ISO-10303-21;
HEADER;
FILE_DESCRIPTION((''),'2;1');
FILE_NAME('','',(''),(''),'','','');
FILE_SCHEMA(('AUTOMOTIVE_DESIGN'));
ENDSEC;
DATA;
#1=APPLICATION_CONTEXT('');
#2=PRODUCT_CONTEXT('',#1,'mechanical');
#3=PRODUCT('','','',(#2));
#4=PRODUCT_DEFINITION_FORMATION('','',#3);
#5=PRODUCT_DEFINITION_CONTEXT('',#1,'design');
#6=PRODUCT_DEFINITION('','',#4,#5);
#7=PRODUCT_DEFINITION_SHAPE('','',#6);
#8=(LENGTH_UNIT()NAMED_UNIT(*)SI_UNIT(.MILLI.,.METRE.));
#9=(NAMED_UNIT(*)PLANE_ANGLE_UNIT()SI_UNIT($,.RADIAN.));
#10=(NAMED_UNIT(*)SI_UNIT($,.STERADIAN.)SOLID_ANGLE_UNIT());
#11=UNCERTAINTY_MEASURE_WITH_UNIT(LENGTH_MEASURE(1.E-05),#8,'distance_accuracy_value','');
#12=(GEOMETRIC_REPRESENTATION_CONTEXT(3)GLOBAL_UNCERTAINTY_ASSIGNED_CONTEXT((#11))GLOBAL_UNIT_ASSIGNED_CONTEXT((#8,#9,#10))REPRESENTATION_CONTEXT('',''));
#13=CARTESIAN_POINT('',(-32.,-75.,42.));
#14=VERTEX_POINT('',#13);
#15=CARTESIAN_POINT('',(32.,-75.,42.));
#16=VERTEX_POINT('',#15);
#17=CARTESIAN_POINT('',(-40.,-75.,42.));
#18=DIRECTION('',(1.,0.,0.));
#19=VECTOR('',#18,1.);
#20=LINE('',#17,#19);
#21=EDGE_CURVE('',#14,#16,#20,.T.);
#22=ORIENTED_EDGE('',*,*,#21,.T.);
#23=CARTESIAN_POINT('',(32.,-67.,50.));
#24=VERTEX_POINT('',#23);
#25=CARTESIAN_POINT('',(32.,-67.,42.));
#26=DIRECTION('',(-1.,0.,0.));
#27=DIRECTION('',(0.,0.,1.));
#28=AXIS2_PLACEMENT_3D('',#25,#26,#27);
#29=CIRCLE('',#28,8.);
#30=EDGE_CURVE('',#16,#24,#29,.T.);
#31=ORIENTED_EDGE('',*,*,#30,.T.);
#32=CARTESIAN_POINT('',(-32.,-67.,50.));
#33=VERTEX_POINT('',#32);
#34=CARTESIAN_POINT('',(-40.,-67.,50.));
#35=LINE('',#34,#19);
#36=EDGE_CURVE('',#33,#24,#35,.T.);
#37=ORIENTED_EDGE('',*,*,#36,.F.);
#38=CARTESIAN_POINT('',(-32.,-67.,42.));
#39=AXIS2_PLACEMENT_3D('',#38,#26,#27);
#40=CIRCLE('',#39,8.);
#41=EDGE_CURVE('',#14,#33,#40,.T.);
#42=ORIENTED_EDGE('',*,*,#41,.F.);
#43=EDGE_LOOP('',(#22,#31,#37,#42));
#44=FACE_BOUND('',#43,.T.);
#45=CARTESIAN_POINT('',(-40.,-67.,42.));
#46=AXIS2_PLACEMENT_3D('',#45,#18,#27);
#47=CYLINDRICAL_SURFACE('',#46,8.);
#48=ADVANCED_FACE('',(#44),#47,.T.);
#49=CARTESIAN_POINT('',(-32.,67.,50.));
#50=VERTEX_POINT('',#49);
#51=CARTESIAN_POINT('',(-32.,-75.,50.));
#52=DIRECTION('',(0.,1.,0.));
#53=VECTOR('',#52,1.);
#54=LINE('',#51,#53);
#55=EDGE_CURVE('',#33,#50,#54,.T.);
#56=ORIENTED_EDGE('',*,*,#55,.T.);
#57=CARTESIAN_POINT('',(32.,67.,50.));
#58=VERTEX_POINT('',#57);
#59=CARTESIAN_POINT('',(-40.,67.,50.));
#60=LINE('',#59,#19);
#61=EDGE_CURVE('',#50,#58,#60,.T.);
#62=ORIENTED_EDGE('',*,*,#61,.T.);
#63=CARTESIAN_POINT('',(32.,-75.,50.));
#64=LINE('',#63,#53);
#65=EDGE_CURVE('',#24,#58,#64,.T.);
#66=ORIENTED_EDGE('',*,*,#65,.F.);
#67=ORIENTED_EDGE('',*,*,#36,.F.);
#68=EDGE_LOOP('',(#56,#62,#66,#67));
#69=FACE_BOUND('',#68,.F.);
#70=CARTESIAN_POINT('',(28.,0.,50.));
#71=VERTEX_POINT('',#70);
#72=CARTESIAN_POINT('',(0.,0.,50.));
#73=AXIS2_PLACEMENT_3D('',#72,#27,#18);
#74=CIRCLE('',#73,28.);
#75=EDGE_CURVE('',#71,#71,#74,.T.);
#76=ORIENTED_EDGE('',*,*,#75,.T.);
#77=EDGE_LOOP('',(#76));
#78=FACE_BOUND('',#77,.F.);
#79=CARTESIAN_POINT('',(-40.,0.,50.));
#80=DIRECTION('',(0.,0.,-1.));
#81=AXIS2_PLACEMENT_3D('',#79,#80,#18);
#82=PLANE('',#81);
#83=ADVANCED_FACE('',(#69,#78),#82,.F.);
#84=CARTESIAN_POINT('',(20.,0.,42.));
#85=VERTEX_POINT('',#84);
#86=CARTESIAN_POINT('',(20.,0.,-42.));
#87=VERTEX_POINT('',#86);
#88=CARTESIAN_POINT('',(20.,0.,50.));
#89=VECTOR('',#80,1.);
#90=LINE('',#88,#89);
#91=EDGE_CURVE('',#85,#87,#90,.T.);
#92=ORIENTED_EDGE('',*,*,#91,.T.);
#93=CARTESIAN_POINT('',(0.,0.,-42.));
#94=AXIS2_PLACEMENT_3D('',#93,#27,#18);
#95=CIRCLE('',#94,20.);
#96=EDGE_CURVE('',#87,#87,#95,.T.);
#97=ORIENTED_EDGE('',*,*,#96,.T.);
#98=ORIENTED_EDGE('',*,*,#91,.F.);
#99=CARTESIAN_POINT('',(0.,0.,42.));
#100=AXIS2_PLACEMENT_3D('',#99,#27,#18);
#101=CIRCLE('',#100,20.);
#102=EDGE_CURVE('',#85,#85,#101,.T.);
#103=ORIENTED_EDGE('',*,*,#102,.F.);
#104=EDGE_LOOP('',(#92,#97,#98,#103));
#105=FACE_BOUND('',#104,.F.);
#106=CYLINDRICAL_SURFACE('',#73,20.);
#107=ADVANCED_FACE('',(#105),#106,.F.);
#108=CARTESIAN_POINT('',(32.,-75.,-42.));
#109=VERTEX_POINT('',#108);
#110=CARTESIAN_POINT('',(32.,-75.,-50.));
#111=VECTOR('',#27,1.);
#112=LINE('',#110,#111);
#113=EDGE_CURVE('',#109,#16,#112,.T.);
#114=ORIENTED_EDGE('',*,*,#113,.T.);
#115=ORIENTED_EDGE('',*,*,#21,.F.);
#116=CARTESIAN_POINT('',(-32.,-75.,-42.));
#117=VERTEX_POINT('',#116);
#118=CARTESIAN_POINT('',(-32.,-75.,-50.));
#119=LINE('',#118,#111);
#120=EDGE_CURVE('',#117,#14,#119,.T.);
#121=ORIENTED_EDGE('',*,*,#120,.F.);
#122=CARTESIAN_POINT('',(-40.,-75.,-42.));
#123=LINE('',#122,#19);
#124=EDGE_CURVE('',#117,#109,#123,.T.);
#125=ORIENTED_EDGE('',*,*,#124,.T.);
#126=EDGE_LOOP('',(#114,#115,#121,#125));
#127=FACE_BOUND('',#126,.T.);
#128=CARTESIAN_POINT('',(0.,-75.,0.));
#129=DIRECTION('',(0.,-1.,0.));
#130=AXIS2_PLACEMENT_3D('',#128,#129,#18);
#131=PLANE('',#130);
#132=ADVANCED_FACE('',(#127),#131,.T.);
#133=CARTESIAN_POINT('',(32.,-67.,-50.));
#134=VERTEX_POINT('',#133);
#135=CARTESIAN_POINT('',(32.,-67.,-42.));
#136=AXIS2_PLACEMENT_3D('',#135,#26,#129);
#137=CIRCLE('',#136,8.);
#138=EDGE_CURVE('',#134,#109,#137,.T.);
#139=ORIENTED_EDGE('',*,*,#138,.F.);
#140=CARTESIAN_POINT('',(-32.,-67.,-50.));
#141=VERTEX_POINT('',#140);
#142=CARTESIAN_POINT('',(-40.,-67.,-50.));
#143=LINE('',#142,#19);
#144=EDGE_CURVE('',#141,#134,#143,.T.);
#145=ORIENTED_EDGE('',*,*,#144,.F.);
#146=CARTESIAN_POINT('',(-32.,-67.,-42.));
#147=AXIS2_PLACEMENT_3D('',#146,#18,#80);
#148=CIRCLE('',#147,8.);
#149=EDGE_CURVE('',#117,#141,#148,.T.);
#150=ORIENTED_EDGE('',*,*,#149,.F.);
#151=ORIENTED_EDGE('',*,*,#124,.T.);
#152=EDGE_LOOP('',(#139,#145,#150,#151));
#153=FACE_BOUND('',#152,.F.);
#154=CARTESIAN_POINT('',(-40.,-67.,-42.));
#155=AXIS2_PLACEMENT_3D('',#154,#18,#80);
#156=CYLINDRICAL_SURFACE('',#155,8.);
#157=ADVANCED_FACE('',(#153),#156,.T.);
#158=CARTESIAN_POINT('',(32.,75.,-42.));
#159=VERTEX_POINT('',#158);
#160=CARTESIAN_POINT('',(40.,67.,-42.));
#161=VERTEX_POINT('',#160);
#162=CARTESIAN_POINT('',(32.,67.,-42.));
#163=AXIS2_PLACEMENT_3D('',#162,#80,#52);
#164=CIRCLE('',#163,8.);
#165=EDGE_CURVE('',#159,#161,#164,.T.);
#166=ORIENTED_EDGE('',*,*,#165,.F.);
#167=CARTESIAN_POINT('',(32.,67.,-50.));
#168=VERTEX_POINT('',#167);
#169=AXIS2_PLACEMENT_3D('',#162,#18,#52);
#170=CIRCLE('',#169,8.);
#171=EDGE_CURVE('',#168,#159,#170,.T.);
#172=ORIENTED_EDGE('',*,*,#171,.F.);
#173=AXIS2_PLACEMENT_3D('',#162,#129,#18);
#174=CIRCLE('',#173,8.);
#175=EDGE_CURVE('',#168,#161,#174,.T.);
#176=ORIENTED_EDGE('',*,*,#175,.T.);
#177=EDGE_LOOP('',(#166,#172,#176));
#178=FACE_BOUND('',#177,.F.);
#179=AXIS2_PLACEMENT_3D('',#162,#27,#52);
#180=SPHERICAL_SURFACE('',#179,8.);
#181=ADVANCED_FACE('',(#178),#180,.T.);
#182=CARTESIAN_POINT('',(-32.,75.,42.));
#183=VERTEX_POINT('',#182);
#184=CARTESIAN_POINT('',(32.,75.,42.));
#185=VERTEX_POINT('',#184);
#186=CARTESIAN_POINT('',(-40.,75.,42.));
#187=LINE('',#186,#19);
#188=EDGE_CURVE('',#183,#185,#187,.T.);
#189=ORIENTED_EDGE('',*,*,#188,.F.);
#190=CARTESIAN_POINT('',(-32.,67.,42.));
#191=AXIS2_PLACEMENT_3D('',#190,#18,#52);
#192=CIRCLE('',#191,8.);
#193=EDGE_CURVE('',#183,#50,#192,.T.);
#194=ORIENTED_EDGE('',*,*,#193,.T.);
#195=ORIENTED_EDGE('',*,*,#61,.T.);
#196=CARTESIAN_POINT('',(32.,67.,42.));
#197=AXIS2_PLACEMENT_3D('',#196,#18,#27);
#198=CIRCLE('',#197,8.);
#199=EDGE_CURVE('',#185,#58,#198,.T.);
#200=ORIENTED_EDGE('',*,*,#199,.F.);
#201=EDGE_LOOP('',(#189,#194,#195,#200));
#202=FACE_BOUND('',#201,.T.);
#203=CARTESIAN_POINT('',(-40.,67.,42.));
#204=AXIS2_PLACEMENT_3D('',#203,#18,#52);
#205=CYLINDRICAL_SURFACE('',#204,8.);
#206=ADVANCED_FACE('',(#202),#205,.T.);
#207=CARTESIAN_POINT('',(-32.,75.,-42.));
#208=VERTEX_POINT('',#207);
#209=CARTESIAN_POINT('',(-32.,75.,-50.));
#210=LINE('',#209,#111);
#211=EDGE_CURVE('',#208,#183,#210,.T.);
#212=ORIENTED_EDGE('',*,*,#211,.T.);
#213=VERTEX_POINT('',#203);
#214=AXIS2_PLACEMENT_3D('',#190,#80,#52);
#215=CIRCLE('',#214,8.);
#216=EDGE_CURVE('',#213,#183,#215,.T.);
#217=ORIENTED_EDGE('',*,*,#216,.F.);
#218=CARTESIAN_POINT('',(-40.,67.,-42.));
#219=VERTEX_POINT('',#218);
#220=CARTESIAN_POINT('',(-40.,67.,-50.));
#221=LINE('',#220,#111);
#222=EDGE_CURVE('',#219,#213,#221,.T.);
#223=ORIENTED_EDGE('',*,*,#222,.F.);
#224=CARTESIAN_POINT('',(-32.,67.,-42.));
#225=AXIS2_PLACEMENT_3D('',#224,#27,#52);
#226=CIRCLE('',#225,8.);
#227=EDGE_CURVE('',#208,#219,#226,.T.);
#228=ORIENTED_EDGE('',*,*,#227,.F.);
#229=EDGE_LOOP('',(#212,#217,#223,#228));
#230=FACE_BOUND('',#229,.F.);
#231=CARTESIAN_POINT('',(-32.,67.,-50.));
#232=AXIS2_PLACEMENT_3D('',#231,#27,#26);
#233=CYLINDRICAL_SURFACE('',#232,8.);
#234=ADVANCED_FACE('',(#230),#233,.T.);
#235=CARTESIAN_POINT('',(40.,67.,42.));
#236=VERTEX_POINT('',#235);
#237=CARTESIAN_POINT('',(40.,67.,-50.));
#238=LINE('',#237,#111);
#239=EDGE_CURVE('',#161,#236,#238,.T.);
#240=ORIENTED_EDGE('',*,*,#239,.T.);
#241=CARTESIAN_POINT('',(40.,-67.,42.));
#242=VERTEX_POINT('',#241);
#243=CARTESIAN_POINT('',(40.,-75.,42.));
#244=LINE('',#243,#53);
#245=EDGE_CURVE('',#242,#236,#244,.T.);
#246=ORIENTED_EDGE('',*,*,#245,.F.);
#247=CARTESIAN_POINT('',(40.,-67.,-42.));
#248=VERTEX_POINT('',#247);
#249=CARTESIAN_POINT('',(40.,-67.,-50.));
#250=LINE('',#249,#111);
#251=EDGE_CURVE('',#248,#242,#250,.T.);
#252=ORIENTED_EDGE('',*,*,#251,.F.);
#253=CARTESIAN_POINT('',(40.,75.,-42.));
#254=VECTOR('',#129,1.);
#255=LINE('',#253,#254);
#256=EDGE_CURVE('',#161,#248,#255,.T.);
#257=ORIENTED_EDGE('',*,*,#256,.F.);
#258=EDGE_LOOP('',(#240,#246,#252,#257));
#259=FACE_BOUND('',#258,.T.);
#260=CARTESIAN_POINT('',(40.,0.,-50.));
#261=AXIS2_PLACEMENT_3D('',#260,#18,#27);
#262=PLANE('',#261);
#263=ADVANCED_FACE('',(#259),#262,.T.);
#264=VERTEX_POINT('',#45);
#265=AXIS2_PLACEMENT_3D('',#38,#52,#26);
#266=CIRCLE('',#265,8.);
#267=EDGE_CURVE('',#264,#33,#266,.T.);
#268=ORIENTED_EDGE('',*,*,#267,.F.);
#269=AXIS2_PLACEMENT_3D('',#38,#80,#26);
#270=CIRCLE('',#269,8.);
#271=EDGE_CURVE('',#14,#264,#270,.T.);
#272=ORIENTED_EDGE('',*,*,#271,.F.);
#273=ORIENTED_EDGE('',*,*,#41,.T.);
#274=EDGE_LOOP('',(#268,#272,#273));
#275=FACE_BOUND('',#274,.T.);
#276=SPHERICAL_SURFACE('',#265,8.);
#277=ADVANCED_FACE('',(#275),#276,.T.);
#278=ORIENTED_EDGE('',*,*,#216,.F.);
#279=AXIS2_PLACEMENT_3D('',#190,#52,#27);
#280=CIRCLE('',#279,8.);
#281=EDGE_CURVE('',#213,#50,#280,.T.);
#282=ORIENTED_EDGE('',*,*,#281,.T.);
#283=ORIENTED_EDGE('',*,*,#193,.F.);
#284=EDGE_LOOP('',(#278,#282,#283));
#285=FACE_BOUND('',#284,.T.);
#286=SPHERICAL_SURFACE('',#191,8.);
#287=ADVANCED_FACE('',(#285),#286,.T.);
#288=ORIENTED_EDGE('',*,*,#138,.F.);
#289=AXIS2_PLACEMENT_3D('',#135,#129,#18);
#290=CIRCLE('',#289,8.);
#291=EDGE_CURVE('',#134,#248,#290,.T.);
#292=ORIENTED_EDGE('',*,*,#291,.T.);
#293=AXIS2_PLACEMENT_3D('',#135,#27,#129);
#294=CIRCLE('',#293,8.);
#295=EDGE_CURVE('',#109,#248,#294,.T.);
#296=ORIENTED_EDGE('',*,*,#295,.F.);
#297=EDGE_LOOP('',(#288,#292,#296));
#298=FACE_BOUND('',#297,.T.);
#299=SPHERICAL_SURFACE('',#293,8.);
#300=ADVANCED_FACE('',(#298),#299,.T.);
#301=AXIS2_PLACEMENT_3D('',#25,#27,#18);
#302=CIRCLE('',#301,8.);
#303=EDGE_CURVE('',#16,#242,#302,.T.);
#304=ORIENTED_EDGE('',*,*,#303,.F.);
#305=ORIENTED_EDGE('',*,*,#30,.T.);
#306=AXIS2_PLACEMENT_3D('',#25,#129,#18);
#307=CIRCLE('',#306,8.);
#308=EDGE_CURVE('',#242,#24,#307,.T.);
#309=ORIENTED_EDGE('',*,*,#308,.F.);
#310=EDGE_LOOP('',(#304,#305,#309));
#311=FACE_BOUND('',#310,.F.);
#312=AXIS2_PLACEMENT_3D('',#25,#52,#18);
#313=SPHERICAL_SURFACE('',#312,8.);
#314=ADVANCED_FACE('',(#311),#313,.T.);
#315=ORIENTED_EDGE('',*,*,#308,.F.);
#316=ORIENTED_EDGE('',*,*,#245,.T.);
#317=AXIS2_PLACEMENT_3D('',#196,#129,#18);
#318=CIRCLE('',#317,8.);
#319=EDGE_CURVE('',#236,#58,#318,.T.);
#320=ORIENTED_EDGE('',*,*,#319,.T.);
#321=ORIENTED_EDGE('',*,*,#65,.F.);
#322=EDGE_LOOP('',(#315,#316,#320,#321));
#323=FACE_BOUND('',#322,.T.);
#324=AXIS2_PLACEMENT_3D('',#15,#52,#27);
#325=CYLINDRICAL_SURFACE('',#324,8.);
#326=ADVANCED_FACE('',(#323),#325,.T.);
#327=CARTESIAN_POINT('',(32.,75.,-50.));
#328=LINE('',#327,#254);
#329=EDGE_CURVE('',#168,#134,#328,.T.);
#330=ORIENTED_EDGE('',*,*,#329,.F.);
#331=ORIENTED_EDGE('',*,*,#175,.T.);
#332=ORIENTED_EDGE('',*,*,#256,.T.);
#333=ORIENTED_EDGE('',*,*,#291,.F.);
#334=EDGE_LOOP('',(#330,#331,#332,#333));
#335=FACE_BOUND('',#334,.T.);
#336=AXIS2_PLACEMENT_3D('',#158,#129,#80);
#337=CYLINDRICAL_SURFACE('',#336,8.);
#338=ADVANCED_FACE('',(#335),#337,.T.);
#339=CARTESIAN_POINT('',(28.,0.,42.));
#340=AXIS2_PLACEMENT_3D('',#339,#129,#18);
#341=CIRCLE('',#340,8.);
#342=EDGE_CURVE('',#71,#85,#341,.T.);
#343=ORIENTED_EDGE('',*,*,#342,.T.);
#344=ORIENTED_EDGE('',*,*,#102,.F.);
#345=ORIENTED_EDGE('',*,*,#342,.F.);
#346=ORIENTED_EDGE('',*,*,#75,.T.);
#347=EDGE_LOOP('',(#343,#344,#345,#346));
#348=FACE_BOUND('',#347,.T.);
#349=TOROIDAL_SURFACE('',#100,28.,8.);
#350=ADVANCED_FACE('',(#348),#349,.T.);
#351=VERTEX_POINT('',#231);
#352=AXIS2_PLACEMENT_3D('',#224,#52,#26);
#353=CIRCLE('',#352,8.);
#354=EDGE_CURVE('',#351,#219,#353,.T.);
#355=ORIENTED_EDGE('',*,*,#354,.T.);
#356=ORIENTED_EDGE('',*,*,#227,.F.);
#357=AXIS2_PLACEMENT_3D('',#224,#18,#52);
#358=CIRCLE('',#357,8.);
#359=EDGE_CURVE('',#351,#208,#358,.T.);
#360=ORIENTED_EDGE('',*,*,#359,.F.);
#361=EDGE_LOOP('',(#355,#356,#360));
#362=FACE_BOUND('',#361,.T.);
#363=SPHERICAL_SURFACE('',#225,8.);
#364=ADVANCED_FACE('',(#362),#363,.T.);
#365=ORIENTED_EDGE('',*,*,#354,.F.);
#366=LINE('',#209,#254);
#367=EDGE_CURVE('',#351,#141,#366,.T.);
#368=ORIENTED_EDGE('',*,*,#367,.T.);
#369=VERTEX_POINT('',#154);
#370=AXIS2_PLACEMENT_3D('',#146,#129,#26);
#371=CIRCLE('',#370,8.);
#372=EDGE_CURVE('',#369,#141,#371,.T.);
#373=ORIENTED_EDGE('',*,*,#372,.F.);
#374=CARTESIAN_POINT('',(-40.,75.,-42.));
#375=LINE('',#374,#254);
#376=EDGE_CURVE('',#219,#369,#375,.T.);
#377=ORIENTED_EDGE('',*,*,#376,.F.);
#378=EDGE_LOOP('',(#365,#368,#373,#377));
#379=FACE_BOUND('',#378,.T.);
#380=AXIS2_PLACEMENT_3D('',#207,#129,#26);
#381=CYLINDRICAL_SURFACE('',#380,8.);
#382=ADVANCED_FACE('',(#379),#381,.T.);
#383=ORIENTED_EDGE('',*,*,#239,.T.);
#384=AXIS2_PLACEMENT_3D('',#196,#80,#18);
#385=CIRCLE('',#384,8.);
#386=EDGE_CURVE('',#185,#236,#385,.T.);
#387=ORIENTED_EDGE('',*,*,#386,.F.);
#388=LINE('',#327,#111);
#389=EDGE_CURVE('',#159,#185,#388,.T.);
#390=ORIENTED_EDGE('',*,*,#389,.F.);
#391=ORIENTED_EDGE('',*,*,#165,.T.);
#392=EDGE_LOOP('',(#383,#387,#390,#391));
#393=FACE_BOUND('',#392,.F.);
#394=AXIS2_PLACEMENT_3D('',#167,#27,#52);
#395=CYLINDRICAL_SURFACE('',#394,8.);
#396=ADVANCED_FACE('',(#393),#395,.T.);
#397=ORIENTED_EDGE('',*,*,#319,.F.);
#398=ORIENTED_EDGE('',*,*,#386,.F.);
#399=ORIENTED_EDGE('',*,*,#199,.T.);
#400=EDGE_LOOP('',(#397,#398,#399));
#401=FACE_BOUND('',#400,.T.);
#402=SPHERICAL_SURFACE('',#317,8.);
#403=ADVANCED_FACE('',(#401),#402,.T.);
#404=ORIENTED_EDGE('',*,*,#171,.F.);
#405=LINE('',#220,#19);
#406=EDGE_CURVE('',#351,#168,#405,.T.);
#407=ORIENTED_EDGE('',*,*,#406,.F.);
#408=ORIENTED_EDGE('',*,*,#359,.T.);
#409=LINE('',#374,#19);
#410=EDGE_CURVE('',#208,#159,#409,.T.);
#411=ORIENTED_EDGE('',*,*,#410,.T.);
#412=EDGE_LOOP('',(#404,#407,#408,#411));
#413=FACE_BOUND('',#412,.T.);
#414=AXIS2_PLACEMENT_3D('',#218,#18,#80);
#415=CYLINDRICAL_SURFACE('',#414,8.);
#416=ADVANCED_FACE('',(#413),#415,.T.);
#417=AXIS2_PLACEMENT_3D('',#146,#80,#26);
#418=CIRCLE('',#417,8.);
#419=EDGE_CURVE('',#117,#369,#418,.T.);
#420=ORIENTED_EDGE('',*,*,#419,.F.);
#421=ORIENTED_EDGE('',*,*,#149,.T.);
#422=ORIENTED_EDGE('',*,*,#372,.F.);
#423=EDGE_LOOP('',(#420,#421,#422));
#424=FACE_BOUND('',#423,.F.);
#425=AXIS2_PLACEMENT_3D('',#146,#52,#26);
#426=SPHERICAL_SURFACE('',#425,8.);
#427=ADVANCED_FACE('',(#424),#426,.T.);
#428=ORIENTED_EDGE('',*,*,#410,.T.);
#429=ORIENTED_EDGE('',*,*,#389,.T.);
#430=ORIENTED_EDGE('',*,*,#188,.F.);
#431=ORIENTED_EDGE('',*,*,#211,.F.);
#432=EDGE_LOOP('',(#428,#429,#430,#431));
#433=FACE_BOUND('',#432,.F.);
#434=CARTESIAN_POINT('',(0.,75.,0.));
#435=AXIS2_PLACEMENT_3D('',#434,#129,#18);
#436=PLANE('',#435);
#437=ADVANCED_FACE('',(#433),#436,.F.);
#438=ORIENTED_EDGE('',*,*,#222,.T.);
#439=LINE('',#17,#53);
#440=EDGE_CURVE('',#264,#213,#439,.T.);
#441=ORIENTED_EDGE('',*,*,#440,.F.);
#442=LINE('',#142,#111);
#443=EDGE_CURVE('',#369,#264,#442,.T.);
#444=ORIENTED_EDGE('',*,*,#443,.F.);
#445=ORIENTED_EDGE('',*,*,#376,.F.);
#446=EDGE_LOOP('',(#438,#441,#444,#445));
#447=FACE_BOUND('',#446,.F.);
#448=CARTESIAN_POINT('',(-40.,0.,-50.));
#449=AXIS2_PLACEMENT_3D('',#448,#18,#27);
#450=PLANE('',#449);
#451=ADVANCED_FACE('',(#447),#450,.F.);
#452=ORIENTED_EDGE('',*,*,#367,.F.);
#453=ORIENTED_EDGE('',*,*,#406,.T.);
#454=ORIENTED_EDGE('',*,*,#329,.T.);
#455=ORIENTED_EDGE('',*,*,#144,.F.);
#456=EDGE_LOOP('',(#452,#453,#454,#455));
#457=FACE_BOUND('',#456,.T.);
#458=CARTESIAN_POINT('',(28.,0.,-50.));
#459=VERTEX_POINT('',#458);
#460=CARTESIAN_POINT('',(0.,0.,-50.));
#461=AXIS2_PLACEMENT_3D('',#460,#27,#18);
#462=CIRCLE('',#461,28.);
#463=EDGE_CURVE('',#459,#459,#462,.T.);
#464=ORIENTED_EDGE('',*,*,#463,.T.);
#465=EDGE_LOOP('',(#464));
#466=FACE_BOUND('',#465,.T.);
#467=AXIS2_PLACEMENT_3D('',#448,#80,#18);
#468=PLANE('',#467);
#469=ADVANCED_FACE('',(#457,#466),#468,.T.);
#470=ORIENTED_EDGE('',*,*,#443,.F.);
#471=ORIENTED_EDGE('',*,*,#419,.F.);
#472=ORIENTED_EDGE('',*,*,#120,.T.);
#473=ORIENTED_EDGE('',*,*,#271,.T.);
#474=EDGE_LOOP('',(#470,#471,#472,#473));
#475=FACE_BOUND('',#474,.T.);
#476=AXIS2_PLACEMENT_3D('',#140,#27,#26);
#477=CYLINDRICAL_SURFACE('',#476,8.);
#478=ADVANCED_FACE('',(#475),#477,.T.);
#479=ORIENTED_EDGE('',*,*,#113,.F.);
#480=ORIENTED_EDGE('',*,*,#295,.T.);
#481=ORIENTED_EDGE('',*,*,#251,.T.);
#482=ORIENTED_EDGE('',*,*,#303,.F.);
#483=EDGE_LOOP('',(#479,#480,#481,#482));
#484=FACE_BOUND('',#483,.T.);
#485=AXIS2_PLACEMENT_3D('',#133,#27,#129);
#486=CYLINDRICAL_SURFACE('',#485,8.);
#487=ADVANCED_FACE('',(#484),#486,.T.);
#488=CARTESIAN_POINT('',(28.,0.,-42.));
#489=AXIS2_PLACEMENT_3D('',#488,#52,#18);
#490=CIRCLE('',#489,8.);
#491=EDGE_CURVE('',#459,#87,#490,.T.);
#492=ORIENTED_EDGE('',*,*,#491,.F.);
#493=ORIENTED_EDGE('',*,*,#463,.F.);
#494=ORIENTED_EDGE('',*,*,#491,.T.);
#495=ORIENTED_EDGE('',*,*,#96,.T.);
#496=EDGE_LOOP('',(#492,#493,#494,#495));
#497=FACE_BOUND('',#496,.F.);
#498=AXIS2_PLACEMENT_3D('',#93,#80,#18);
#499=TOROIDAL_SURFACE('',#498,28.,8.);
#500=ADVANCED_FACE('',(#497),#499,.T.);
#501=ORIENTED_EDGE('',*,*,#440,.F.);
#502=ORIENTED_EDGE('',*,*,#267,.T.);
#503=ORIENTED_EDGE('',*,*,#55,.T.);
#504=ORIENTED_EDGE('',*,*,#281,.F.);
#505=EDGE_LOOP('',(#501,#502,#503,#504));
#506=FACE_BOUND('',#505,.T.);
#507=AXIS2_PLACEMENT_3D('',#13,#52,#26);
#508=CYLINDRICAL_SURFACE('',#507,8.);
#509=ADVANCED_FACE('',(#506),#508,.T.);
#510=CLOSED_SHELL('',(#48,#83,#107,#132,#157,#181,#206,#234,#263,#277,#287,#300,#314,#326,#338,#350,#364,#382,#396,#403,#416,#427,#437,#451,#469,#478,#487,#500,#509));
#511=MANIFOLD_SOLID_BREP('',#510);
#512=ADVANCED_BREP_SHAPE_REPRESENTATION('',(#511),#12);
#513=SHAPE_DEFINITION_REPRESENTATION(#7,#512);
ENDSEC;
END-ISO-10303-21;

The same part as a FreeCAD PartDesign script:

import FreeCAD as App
import Part
import Sketcher

V = App.Vector

doc = App.newDocument("Part")
params = doc.addObject("Spreadsheet::Sheet", "Params")
for row, (alias, value) in enumerate([
    ("sketch1_width", "80 mm"),
    ("sketch1_height", "100 mm"),
    ("pad1_length", "150 mm"),
    ("sketch2_diameter", "40 mm"),
    ("pocket1_length", "107 mm"),
    ("fillet_radius", "8 mm"),
], start=1):
    params.set(f"A{row}", alias)
    params.set(f"B{row}", "=" + value)
    params.setAlias(f"B{row}", alias)

body = doc.addObject("PartDesign::Body", "Body")

sketch1 = doc.addObject("Sketcher::SketchObject", "Sketch")
body.addObject(sketch1)
sketch1.AttachmentSupport = (doc.XZ_Plane, [""])
sketch1.MapMode = "FlatFace"
sketch1.addGeometry([
    Part.LineSegment(V(-40, 50, 0), V(-40, -50, 0)),
    Part.LineSegment(V(-40, -50, 0), V(40, -50, 0)),
    Part.LineSegment(V(40, -50, 0), V(40, 50, 0)),
    Part.LineSegment(V(40, 50, 0), V(-40, 50, 0)),
], False)
sketch1.addConstraint([
    Sketcher.Constraint("Coincident", 0, 2, 1, 1),
    Sketcher.Constraint("Coincident", 1, 2, 2, 1),
    Sketcher.Constraint("Coincident", 2, 2, 3, 1),
    Sketcher.Constraint("Coincident", 3, 2, 0, 1),
    Sketcher.Constraint("Vertical", 0),
    Sketcher.Constraint("Horizontal", 1),
    Sketcher.Constraint("Vertical", 2),
    Sketcher.Constraint("Horizontal", 3),
    Sketcher.Constraint("Symmetric", 0, 2, 2, 2, -1, 1),
    Sketcher.Constraint("DistanceX", 1, 1, 1, 2, 80.0),
    Sketcher.Constraint("DistanceY", 0, 2, 0, 1, 100.0),
])
sketch1.setExpression("Constraints[9]", "Params.sketch1_width")
sketch1.setExpression("Constraints[10]", "Params.sketch1_height")
pad1 = doc.addObject("PartDesign::Pad", "Pad")
body.addObject(pad1)
pad1.Profile = sketch1
pad1.setExpression("Length", "Params.pad1_length")
pad1.Midplane = True

sketch2 = doc.addObject("Sketcher::SketchObject", "Sketch001")
body.addObject(sketch2)
sketch2.AttachmentSupport = (doc.XY_Plane, [""])
sketch2.MapMode = "FlatFace"
sketch2.AttachmentOffset = App.Placement(V(0, 0, 50), App.Rotation())
sketch2.addGeometry(Part.Circle(V(0, 0, 0), V(0, 0, 1), 20), False)
sketch2.addConstraint([
    Sketcher.Constraint("Coincident", 0, 3, -1, 1),
    Sketcher.Constraint("Diameter", 0, 40.0),
])
sketch2.setExpression("Constraints[1]", "Params.sketch2_diameter")
pocket1 = doc.addObject("PartDesign::Pocket", "Pocket")
body.addObject(pocket1)
pocket1.Profile = sketch2
pocket1.setExpression("Length", "Params.pocket1_length")
doc.recompute()

fillet = doc.addObject("PartDesign::Fillet", "Fillet")
body.addObject(fillet)
fillet.Base = (pocket1, ["Edge1"])
fillet.UseAllEdges = True
fillet.setExpression("Radius", "Params.fillet_radius")

doc.recompute()
